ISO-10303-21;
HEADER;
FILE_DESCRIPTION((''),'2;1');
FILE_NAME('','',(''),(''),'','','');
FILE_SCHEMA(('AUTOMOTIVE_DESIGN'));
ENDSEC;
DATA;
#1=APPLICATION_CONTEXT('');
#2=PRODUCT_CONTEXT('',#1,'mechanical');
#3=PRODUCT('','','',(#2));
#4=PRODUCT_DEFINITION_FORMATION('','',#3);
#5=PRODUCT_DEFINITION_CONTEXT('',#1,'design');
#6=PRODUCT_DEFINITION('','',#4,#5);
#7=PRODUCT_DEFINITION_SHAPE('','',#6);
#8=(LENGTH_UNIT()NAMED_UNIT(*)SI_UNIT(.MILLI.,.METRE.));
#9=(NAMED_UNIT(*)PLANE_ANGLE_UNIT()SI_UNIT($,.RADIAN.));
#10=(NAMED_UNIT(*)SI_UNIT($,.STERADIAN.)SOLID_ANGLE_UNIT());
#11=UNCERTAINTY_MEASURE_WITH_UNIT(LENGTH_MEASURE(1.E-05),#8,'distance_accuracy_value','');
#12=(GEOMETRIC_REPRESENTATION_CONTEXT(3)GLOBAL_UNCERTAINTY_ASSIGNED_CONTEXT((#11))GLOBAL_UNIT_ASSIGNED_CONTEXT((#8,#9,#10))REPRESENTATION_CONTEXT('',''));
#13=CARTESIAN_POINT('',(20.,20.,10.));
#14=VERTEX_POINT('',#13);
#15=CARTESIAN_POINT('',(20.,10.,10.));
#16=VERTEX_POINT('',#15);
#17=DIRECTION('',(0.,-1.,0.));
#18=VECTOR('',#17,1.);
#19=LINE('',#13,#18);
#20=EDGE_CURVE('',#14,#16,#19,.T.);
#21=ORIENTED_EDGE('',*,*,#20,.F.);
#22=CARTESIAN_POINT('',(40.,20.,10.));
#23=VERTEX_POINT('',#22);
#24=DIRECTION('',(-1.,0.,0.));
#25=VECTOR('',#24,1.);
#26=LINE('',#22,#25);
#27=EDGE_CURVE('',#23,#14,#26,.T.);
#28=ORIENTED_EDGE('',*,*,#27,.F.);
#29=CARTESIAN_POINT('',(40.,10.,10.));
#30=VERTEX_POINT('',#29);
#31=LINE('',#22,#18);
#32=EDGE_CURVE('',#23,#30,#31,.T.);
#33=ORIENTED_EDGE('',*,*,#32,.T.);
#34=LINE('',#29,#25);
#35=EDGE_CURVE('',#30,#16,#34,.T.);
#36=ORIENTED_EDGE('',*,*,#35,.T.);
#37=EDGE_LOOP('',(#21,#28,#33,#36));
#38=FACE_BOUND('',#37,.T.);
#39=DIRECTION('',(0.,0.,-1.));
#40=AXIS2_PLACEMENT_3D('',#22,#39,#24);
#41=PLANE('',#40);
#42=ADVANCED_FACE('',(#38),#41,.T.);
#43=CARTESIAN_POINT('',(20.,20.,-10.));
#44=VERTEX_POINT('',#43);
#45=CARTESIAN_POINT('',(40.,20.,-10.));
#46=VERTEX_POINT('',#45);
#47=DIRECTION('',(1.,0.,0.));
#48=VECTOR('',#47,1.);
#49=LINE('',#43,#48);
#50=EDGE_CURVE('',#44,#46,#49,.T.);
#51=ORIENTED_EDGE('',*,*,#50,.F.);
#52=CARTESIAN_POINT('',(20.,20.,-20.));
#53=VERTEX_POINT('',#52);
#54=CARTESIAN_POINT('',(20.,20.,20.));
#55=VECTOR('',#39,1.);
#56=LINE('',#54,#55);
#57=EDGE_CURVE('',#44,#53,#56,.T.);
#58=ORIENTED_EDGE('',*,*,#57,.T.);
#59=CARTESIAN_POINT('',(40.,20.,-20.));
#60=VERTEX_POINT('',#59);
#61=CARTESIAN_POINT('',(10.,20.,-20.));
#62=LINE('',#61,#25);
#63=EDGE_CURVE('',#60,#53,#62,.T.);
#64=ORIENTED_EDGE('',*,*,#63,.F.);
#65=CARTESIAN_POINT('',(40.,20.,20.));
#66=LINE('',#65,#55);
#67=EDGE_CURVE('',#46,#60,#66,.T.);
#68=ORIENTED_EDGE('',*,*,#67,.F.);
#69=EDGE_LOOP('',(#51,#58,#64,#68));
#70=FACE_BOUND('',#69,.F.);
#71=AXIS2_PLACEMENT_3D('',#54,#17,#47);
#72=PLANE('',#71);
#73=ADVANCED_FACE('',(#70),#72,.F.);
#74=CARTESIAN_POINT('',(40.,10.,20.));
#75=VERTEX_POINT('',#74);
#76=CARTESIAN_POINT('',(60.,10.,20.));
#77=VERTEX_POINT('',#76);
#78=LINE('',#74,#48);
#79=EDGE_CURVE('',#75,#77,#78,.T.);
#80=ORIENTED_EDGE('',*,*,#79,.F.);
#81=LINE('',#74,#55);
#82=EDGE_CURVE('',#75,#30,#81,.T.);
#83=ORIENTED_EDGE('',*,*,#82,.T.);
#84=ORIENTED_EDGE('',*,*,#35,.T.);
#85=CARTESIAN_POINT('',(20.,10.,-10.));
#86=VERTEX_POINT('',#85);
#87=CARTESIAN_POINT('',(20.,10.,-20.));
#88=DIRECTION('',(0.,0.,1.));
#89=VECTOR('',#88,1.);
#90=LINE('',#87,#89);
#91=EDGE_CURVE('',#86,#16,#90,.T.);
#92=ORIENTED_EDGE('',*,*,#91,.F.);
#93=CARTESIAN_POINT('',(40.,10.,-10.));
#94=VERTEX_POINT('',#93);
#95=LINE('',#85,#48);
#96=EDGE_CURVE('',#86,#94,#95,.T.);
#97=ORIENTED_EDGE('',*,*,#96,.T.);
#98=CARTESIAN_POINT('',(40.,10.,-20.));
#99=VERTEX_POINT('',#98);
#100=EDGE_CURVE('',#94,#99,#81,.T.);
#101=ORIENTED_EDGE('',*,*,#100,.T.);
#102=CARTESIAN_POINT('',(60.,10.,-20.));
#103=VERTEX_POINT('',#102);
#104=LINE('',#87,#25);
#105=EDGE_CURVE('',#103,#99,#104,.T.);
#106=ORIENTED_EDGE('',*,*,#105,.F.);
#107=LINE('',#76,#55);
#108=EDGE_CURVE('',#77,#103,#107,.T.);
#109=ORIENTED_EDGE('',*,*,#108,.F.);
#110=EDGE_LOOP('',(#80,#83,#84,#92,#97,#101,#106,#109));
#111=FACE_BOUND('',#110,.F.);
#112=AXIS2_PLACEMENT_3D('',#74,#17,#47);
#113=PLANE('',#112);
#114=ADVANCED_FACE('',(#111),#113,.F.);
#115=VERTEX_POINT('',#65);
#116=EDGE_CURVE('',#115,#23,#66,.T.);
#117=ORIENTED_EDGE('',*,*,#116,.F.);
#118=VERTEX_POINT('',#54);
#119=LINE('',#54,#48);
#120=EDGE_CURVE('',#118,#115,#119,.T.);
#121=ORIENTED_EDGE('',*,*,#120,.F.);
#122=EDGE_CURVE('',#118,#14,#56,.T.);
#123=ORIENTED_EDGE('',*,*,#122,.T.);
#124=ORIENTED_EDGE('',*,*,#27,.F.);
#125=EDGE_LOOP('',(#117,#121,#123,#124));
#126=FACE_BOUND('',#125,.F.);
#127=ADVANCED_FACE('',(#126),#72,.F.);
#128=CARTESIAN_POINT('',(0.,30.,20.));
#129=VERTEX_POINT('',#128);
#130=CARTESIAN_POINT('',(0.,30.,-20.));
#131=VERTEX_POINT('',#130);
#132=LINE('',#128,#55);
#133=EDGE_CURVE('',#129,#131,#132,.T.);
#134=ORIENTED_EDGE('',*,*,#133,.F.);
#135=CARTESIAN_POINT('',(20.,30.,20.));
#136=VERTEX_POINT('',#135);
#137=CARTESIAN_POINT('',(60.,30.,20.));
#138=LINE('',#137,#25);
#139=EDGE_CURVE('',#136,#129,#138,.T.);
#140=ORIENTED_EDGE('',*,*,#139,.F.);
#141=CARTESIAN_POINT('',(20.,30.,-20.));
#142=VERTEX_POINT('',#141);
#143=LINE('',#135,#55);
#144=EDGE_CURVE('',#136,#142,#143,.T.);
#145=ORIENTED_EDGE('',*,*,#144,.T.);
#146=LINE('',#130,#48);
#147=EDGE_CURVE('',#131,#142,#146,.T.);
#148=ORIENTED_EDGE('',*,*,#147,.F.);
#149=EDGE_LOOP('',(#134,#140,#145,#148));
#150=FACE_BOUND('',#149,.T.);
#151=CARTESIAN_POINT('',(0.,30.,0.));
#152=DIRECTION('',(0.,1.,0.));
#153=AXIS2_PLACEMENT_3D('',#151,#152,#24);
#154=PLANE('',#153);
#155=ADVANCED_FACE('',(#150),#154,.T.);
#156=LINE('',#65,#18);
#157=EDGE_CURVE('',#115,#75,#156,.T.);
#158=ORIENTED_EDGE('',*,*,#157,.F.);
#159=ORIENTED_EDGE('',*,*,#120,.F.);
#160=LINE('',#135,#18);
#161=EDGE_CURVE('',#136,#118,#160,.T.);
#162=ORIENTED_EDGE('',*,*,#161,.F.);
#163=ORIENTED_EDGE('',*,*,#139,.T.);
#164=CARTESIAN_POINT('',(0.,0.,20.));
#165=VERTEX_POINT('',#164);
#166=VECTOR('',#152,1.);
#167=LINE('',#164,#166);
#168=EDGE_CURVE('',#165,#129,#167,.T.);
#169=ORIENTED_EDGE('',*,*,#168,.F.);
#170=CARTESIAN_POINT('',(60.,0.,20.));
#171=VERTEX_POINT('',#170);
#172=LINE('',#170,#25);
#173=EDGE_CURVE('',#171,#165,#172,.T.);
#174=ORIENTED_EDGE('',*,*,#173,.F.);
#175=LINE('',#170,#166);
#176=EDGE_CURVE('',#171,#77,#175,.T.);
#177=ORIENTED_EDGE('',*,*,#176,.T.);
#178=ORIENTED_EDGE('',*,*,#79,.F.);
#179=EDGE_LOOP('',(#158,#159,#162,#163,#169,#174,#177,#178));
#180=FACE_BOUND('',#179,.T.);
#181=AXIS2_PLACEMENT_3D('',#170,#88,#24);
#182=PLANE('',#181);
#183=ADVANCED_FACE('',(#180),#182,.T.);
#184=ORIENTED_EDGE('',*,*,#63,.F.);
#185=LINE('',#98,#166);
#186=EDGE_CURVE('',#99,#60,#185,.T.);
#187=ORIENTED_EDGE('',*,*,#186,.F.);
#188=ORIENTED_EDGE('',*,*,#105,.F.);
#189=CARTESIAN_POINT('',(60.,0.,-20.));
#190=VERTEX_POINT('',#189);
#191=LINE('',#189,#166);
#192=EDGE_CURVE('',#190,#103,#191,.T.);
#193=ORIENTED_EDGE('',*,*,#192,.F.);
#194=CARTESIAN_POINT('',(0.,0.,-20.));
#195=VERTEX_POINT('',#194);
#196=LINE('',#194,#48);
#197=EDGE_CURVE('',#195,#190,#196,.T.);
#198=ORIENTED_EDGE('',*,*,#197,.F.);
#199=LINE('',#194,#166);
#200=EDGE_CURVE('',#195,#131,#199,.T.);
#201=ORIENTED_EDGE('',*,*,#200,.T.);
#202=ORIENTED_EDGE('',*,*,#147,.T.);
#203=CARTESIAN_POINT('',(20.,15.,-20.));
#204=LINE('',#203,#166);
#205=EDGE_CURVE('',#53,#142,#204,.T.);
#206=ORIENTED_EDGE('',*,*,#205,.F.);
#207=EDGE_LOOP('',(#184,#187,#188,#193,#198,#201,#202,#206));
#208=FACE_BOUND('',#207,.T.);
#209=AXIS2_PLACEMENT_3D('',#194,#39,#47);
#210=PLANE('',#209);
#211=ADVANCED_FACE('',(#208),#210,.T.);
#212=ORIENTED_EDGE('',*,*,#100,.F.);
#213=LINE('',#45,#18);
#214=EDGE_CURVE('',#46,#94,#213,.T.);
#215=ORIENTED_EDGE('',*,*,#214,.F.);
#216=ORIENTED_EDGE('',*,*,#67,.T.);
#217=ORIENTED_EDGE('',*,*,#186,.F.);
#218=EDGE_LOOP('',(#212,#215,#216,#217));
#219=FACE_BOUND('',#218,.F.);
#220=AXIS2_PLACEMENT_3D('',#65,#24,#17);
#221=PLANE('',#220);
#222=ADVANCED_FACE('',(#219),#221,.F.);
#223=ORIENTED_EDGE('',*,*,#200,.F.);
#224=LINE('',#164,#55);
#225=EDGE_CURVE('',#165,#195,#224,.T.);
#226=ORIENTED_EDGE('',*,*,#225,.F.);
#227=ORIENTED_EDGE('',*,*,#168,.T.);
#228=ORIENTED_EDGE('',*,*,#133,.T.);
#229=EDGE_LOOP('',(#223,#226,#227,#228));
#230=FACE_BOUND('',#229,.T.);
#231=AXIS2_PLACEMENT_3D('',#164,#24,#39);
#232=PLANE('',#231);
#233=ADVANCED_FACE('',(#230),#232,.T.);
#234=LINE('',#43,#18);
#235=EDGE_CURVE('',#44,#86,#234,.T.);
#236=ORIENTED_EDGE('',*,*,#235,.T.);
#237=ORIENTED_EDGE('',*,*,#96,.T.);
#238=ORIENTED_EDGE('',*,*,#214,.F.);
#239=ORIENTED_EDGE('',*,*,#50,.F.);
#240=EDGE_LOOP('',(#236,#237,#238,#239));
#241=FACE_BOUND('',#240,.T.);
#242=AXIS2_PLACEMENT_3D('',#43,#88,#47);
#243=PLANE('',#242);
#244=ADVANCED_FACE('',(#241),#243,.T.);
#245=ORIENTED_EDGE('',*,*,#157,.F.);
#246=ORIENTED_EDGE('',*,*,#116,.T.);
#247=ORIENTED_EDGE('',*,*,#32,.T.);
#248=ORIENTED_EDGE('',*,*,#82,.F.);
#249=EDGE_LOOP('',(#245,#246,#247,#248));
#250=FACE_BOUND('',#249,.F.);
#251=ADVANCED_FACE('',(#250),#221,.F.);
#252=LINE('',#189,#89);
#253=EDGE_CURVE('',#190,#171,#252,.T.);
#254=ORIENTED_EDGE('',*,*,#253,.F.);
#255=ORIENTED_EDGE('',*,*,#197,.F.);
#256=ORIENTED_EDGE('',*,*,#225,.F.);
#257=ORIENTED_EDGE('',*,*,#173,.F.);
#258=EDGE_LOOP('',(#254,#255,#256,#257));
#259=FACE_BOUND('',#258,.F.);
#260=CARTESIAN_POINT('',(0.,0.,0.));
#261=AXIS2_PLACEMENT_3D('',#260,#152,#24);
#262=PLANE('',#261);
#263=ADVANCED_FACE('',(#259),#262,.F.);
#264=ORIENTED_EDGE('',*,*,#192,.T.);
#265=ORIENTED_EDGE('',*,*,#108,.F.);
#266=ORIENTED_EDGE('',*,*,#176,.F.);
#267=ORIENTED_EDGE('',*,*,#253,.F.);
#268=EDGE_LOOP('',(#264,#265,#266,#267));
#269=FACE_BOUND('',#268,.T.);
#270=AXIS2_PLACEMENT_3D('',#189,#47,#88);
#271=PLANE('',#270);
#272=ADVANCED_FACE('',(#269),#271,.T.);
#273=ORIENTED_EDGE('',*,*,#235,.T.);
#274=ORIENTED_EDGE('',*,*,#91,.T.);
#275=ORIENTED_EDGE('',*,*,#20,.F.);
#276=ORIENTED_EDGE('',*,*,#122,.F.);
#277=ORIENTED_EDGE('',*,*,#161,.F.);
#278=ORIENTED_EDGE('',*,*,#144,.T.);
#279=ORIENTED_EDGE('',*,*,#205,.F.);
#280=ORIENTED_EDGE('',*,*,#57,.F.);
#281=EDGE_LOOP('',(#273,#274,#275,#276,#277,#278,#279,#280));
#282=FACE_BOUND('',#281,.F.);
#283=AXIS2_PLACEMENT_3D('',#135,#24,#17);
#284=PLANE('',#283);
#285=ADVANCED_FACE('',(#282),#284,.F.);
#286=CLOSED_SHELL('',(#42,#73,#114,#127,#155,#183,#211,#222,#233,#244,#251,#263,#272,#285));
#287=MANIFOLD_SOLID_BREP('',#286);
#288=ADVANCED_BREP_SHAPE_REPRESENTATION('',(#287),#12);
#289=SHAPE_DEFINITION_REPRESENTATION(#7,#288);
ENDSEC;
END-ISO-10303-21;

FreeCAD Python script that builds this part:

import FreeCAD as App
import Part
import Sketcher

doc = App.newDocument("Part")
body = doc.addObject("PartDesign::Body", "Body")

# Sketch on XZ plane
sketch1 = doc.addObject("Sketcher::SketchObject", "Sketch")
body.addObject(sketch1)
sketch1.AttachmentSupport = (doc.XZ_Plane, [""])
sketch1.MapMode = "FlatFace"
sketch1.addGeometry(Part.LineSegment(App.Vector(60, -20, 0), App.Vector(0, -20, 0)), False)
sketch1.addGeometry(Part.LineSegment(App.Vector(0, -20, 0), App.Vector(0, 20, 0)), False)
sketch1.addGeometry(Part.LineSegment(App.Vector(0, 20, 0), App.Vector(60, 20, 0)), False)
sketch1.addGeometry(Part.LineSegment(App.Vector(60, 20, 0), App.Vector(60, -20, 0)), False)
sketch1.addConstraint(Sketcher.Constraint("Coincident", 0, 2, 1, 1))
sketch1.addConstraint(Sketcher.Constraint("Coincident", 1, 2, 2, 1))
sketch1.addConstraint(Sketcher.Constraint("Coincident", 2, 2, 3, 1))
sketch1.addConstraint(Sketcher.Constraint("Coincident", 3, 2, 0, 1))
sketch1.addConstraint(Sketcher.Constraint("Horizontal", 0))
sketch1.addConstraint(Sketcher.Constraint("Vertical", 1))
sketch1.addConstraint(Sketcher.Constraint("Horizontal", 2))
sketch1.addConstraint(Sketcher.Constraint("Vertical", 3))
sketch1.addConstraint(Sketcher.Constraint("Symmetric", 0, 2, 1, 2, -1, 1))
sketch1.addConstraint(Sketcher.Constraint("DistanceX", 0, 2, 0, 1, 60.0))
sketch1.addConstraint(Sketcher.Constraint("DistanceY", 1, 1, 1, 2, 40.0))
pad1 = doc.addObject("PartDesign::Pad", "Pad")
body.addObject(pad1)
pad1.Profile = sketch1
pad1.Length = 30
pad1.Reversed = True

# Sketch on XY plane
sketch2 = doc.addObject("Sketcher::SketchObject", "Sketch001")
body.addObject(sketch2)
sketch2.AttachmentSupport = (doc.XY_Plane, [""])
sketch2.MapMode = "FlatFace"
sketch2.AttachmentOffset = App.Placement(App.Vector(0, 0, 20), App.Rotation())
sketch2.addGeometry(Part.LineSegment(App.Vector(60, 30, 0), App.Vector(20, 30, 0)), False)
sketch2.addGeometry(Part.LineSegment(App.Vector(20, 30, 0), App.Vector(20, 20, 0)), False)
sketch2.addGeometry(Part.LineSegment(App.Vector(20, 20, 0), App.Vector(40, 20, 0)), False)
sketch2.addGeometry(Part.LineSegment(App.Vector(40, 20, 0), App.Vector(40, 10, 0)), False)
sketch2.addGeometry(Part.LineSegment(App.Vector(40, 10, 0), App.Vector(60, 10, 0)), False)
sketch2.addGeometry(Part.LineSegment(App.Vector(60, 10, 0), App.Vector(60, 30, 0)), False)
sketch2.addConstraint(Sketcher.Constraint("Coincident", 0, 2, 1, 1))
sketch2.addConstraint(Sketcher.Constraint("Coincident", 1, 2, 2, 1))
sketch2.addConstraint(Sketcher.Constraint("Coincident", 2, 2, 3, 1))
sketch2.addConstraint(Sketcher.Constraint("Coincident", 3, 2, 4, 1))
sketch2.addConstraint(Sketcher.Constraint("Coincident", 4, 2, 5, 1))
sketch2.addConstraint(Sketcher.Constraint("Coincident", 5, 2, 0, 1))
sketch2.addConstraint(Sketcher.Constraint("Horizontal", 0))
sketch2.addConstraint(Sketcher.Constraint("Vertical", 1))
sketch2.addConstraint(Sketcher.Constraint("Horizontal", 2))
sketch2.addConstraint(Sketcher.Constraint("Vertical", 3))
sketch2.addConstraint(Sketcher.Constraint("Horizontal", 4))
sketch2.addConstraint(Sketcher.Constraint("Vertical", 5))
sketch2.addConstraint(Sketcher.Constraint("Equal", 2, 4))
sketch2.addConstraint(Sketcher.Constraint("Equal", 1, 3))
sketch2.addConstraint(Sketcher.Constraint("Equal", 4, 5))
sketch2.addConstraint(Sketcher.Constraint("DistanceX", 2, 1, 2, 2, 20.0))
sketch2.addConstraint(Sketcher.Constraint("DistanceX", -1, 1, 0, 2, 20.0))
sketch2.addConstraint(Sketcher.Constraint("DistanceY", -1, 1, 1, 2, 20.0))
pocket1 = doc.addObject("PartDesign::Pocket", "Pocket")
body.addObject(pocket1)
pocket1.Profile = sketch2
pocket1.Type = "ThroughAll"

# Sketch on XZ plane
sketch3 = doc.addObject("Sketcher::SketchObject", "Sketch002")
body.addObject(sketch3)
sketch3.AttachmentSupport = (doc.XZ_Plane, [""])
sketch3.MapMode = "FlatFace"
sketch3.AttachmentOffset = App.Placement(App.Vector(0, 0, -20), App.Rotation())
sketch3.addGeometry(Part.LineSegment(App.Vector(40, -10, 0), App.Vector(20, -10, 0)), False)
sketch3.addGeometry(Part.LineSegment(App.Vector(20, -10, 0), App.Vector(20, 10, 0)), False)
sketch3.addGeometry(Part.LineSegment(App.Vector(20, 10, 0), App.Vector(40, 10, 0)), False)
sketch3.addGeometry(Part.LineSegment(App.Vector(40, 10, 0), App.Vector(40, -10, 0)), False)
sketch3.addConstraint(Sketcher.Constraint("Coincident", 0, 2, 1, 1))
sketch3.addConstraint(Sketcher.Constraint("Coincident", 1, 2, 2, 1))
sketch3.addConstraint(Sketcher.Constraint("Coincident", 2, 2, 3, 1))
sketch3.addConstraint(Sketcher.Constraint("Coincident", 3, 2, 0, 1))
sketch3.addConstraint(Sketcher.Constraint("Horizontal", 0))
sketch3.addConstraint(Sketcher.Constraint("Vertical", 1))
sketch3.addConstraint(Sketcher.Constraint("Horizontal", 2))
sketch3.addConstraint(Sketcher.Constraint("Vertical", 3))
sketch3.addConstraint(Sketcher.Constraint("Equal", 2, 1))
sketch3.addConstraint(Sketcher.Constraint("DistanceX", 0, 2, 0, 1, 20.0))
sketch3.addConstraint(Sketcher.Constraint("DistanceX", -1, 1, 0, 2, 20.0))
sketch3.addConstraint(Sketcher.Constraint("DistanceY", 0, 2, -1, 1, 10.0))
pocket2 = doc.addObject("PartDesign::Pocket", "Pocket001")
body.addObject(pocket2)
pocket2.Profile = sketch3
pocket2.Length = 10
pocket2.Reversed = True

doc.recompute()
